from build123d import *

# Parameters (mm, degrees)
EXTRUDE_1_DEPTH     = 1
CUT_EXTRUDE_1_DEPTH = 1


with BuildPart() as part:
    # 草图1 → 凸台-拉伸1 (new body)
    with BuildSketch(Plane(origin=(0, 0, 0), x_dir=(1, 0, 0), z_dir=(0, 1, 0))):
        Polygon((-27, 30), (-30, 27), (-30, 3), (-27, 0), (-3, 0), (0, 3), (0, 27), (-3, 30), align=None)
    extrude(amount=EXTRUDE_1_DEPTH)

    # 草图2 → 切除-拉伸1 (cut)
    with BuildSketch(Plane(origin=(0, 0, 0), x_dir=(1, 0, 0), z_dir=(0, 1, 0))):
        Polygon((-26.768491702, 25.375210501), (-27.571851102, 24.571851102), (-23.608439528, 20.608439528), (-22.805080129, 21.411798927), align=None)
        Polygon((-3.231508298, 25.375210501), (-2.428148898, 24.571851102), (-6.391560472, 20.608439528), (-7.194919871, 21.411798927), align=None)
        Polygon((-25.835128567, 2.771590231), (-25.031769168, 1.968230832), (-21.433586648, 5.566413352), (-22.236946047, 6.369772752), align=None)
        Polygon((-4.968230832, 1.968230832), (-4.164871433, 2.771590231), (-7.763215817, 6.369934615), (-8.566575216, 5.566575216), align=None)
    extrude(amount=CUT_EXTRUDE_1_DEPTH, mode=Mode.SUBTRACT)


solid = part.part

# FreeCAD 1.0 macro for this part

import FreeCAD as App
import Part
import Sketcher
from FreeCAD import Vector


def add_polygon(sketch, points):
    """Adds a closed chain of lines whose ends are joined by coincident constraints."""
    first, n = sketch.GeometryCount, len(points)
    for a, b in zip(points, points[1:] + points[:1]):
        sketch.addGeometry(Part.LineSegment(App.Vector(*a, 0), App.Vector(*b, 0)), False)
    for i in range(n):
        sketch.addConstraint(Sketcher.Constraint("Coincident", first + i, 2, first + (i + 1) % n, 1))

doc = App.newDocument("Part")
body = doc.addObject("PartDesign::Body", "Body")

# Sketch on XZ plane
sketch1 = body.newObject("Sketcher::SketchObject", "Sketch")
sketch1.AttachmentSupport = (doc.getObject("XZ_Plane"), [""])
sketch1.MapMode = "FlatFace"
add_polygon(sketch1, [(-27, -30), (-30, -27), (-30, -3), (-27, 0), (-3, 0), (0, -3), (0, -27), (-3, -30)])  # lines 0-7
sketch1.addConstraint([
    Sketcher.Constraint("Vertical", 1),
    Sketcher.Constraint("Horizontal", 3),
    Sketcher.Constraint("Vertical", 5),
    Sketcher.Constraint("Horizontal", 7),
    Sketcher.Constraint("PointOnObject", 2, 2, -1),
    Sketcher.Constraint("PointOnObject", 4, 2, -2),
    Sketcher.Constraint("Perpendicular", 0, 2),
    Sketcher.Constraint("Perpendicular", 2, 4),
    Sketcher.Constraint("Perpendicular", 4, 6),
    Sketcher.Constraint("Horizontal", 1, 2, 4, 2),
    Sketcher.Constraint("Horizontal", 0, 2, 5, 2),
    Sketcher.Constraint("Vertical", 3, 2, 6, 2),
    Sketcher.Constraint("Vertical", 2, 2, 7, 2),
    Sketcher.Constraint("Equal", 7, 1),
    Sketcher.Constraint("DistanceX", 3, 1, 3, 2, 24.0),
    Sketcher.Constraint("DistanceX", 0, 2, -1, 1, 30.0),
])
pad1 = body.newObject("PartDesign::Pad", "Pad")
pad1.Profile = sketch1
pad1.Length = 1
pad1.Reversed = True

# Sketch on XZ plane
sketch2 = body.newObject("Sketcher::SketchObject", "Sketch001")
sketch2.AttachmentSupport = (doc.getObject("XZ_Plane"), [""])
sketch2.MapMode = "FlatFace"
add_polygon(sketch2, [(-26.8, -25.4), (-27.6, -24.6), (-23.6, -20.6), (-22.8, -21.4)])  # lines 0-3
add_polygon(sketch2, [(-2.4, -24.6), (-3.2, -25.4), (-7.2, -21.4), (-6.4, -20.6)])  # lines 4-7
add_polygon(sketch2, [(-25.8, -2.8), (-25, -2), (-21.4, -5.6), (-22.2, -6.4)])  # lines 8-11
add_polygon(sketch2, [(-5, -2), (-4.2, -2.8), (-7.8, -6.4), (-8.6, -5.6)])  # lines 12-15
sketch2.addConstraint([
    Sketcher.Constraint("Perpendicular", 0, 1),
    Sketcher.Constraint("Perpendicular", 1, 2),
    Sketcher.Constraint("Perpendicular", 2, 3),
    Sketcher.Constraint("Parallel", 3, 4),
    Sketcher.Constraint("Perpendicular", 4, 5),
    Sketcher.Constraint("Perpendicular", 5, 6),
    Sketcher.Constraint("Perpendicular", 6, 7),
    Sketcher.Constraint("Perpendicular", 7, 8),
    Sketcher.Constraint("Perpendicular", 8, 9),
    Sketcher.Constraint("Perpendicular", 9, 10),
    Sketcher.Constraint("Perpendicular", 10, 11),
    Sketcher.Constraint("Parallel", 11, 12),
    Sketcher.Constraint("Perpendicular", 12, 13),
    Sketcher.Constraint("Perpendicular", 13, 14),
    Sketcher.Constraint("Perpendicular", 14, 15),
    Sketcher.Constraint("Horizontal", 3, 2, 4, 2),
    Sketcher.Constraint("Horizontal", 2, 2, 5, 2),
    Sketcher.Constraint("Horizontal", 1, 2, 6, 2),
    Sketcher.Constraint("Horizontal", 11, 2, 12, 2),
    Sketcher.Constraint("Horizontal", 8, 2, 15, 2),
    Sketcher.Constraint("Equal", 2, 4),
    Sketcher.Constraint("Equal", 6, 8),
    Sketcher.Constraint("Distance", 9, 5.088599),
    Sketcher.Constraint("DistanceY", 2, 2, -1, 1, 21.411799),
    Sketcher.Constraint("Distance", 0, 1.136122),
    Sketcher.Constraint("Distance", 1, 5.60511),
    Sketcher.Constraint("DistanceX", 0, 2, -1, 1, 27.571851),
    Sketcher.Constraint("DistanceX", 4, 2, -1, 1, 3.231508),
    Sketcher.Constraint("DistanceX", 8, 2, -1, 1, 25.031769),
    Sketcher.Constraint("DistanceY", 8, 2, -1, 1, 1.968231),
    Sketcher.Constraint("DistanceX", 12, 2, -1, 1, 4.164871),
    Sketcher.Constraint("DistanceX", 9, 2, 13, 2, 13.670371),
])
pocket1 = body.newObject("PartDesign::Pocket", "Pocket")
pocket1.Profile = sketch2
pocket1.Length = 1

doc.recompute()
